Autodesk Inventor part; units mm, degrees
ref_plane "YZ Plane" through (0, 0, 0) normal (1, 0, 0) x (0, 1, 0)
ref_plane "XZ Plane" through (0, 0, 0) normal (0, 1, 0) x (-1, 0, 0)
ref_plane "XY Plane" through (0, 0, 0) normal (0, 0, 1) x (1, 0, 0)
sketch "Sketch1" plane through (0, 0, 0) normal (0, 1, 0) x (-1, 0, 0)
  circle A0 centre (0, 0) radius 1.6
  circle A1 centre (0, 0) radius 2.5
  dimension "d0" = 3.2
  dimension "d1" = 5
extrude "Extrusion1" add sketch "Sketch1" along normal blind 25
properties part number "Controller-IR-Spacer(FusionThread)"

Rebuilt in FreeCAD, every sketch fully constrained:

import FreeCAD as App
import Part
import Sketcher
Q = App.Units.Quantity

doc = App.newDocument("Part")
body = doc.addObject("PartDesign::Body", "Body")

# Sketch on XZ plane
sketch1 = body.newObject("Sketcher::SketchObject", "Sketch")
sketch1.AttachmentSupport = (doc.getObject("XZ_Plane"), [""])
sketch1.MapMode = "FlatFace"
sketch1.addGeometry([
    Part.Circle(App.Vector(0, 0, 0), App.Vector(0, 0, 1), 2.5),
    Part.Circle(App.Vector(0, 0, 0), App.Vector(0, 0, 1), 1.6),
], False)
sketch1.addConstraint([
    Sketcher.Constraint("Coincident", 0, 3, -1, 1),
    Sketcher.Constraint("Coincident", 1, 3, -1, 1),
    Sketcher.Constraint("Diameter", 0, Q("5 mm")),
    Sketcher.Constraint("Diameter", 1, Q("3.2 mm")),
])
pad1 = body.newObject("PartDesign::Pad", "Pad")
pad1.Profile = sketch1
pad1.Length = 25
pad1.Reversed = True

doc.recompute()
